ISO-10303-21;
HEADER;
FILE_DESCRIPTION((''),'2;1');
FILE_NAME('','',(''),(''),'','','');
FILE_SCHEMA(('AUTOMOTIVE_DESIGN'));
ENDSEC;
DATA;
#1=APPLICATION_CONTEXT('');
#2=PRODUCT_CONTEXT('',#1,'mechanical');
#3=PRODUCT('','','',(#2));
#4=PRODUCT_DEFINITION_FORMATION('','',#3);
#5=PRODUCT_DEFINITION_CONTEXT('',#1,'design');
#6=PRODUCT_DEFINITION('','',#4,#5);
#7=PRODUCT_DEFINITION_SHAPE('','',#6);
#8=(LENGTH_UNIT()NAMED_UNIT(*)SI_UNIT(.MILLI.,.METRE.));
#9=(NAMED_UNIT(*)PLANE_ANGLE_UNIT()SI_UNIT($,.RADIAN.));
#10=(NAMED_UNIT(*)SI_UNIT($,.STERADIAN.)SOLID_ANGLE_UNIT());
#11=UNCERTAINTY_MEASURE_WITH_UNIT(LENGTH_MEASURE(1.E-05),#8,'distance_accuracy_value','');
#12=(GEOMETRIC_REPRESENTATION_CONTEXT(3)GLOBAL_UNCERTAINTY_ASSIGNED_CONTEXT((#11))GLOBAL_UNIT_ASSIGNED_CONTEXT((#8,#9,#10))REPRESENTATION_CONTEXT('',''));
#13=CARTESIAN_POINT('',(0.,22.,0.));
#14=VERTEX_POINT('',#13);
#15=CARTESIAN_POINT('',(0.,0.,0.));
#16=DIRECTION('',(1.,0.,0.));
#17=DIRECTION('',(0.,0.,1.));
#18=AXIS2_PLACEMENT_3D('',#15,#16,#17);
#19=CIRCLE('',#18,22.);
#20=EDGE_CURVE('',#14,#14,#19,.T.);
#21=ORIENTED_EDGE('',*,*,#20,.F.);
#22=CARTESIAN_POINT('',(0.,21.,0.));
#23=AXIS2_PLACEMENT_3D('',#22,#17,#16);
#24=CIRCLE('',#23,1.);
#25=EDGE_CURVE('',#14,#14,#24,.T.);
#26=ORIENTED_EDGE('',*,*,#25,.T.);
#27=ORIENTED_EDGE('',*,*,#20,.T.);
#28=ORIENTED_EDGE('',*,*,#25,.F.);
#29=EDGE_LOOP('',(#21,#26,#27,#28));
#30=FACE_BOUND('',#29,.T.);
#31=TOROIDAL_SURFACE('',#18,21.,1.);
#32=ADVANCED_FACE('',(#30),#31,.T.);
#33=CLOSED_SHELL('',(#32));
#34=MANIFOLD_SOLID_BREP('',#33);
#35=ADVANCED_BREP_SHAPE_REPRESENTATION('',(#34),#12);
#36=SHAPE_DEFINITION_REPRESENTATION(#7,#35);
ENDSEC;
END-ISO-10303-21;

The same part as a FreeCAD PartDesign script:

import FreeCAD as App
import Part
import Sketcher
from FreeCAD import Vector

doc = App.newDocument("Part")
body = doc.addObject("PartDesign::Body", "Body")

# Sketch on XY plane
sketch1 = body.newObject("Sketcher::SketchObject", "Sketch")
sketch1.AttachmentSupport = (doc.getObject("XY_Plane"), [""])
sketch1.MapMode = "FlatFace"
sketch1.addGeometry(Part.Circle(Vector(0, 21, 0), Vector(0, 0, 1), 1), False)
sketch1.addConstraint(Sketcher.Constraint("PointOnObject", 0, 3, -2))
sketch1.addConstraint(Sketcher.Constraint("Diameter", 0, 2.0))
sketch1.addConstraint(Sketcher.Constraint("DistanceY", -1, 1, 0, 3, 21.0))

# Sketch on YZ plane
sketch2 = body.newObject("Sketcher::SketchObject", "Sketch001")
sketch2.AttachmentSupport = (doc.getObject("YZ_Plane"), [""])
sketch2.MapMode = "FlatFace"
sketch2.addGeometry(Part.Circle(Vector(0, 0, 0), Vector(0, 0, 1), 21), False)
sketch2.addConstraint(Sketcher.Constraint("Coincident", 0, 3, -1, 1))
sketch2.addConstraint(Sketcher.Constraint("Diameter", 0, 42.0))
doc.recompute()

additivepipe = body.newObject("PartDesign::AdditivePipe", "AdditivePipe")
additivepipe.Profile = sketch1
additivepipe.Spine = (sketch2, ["Edge1"])

doc.recompute()
